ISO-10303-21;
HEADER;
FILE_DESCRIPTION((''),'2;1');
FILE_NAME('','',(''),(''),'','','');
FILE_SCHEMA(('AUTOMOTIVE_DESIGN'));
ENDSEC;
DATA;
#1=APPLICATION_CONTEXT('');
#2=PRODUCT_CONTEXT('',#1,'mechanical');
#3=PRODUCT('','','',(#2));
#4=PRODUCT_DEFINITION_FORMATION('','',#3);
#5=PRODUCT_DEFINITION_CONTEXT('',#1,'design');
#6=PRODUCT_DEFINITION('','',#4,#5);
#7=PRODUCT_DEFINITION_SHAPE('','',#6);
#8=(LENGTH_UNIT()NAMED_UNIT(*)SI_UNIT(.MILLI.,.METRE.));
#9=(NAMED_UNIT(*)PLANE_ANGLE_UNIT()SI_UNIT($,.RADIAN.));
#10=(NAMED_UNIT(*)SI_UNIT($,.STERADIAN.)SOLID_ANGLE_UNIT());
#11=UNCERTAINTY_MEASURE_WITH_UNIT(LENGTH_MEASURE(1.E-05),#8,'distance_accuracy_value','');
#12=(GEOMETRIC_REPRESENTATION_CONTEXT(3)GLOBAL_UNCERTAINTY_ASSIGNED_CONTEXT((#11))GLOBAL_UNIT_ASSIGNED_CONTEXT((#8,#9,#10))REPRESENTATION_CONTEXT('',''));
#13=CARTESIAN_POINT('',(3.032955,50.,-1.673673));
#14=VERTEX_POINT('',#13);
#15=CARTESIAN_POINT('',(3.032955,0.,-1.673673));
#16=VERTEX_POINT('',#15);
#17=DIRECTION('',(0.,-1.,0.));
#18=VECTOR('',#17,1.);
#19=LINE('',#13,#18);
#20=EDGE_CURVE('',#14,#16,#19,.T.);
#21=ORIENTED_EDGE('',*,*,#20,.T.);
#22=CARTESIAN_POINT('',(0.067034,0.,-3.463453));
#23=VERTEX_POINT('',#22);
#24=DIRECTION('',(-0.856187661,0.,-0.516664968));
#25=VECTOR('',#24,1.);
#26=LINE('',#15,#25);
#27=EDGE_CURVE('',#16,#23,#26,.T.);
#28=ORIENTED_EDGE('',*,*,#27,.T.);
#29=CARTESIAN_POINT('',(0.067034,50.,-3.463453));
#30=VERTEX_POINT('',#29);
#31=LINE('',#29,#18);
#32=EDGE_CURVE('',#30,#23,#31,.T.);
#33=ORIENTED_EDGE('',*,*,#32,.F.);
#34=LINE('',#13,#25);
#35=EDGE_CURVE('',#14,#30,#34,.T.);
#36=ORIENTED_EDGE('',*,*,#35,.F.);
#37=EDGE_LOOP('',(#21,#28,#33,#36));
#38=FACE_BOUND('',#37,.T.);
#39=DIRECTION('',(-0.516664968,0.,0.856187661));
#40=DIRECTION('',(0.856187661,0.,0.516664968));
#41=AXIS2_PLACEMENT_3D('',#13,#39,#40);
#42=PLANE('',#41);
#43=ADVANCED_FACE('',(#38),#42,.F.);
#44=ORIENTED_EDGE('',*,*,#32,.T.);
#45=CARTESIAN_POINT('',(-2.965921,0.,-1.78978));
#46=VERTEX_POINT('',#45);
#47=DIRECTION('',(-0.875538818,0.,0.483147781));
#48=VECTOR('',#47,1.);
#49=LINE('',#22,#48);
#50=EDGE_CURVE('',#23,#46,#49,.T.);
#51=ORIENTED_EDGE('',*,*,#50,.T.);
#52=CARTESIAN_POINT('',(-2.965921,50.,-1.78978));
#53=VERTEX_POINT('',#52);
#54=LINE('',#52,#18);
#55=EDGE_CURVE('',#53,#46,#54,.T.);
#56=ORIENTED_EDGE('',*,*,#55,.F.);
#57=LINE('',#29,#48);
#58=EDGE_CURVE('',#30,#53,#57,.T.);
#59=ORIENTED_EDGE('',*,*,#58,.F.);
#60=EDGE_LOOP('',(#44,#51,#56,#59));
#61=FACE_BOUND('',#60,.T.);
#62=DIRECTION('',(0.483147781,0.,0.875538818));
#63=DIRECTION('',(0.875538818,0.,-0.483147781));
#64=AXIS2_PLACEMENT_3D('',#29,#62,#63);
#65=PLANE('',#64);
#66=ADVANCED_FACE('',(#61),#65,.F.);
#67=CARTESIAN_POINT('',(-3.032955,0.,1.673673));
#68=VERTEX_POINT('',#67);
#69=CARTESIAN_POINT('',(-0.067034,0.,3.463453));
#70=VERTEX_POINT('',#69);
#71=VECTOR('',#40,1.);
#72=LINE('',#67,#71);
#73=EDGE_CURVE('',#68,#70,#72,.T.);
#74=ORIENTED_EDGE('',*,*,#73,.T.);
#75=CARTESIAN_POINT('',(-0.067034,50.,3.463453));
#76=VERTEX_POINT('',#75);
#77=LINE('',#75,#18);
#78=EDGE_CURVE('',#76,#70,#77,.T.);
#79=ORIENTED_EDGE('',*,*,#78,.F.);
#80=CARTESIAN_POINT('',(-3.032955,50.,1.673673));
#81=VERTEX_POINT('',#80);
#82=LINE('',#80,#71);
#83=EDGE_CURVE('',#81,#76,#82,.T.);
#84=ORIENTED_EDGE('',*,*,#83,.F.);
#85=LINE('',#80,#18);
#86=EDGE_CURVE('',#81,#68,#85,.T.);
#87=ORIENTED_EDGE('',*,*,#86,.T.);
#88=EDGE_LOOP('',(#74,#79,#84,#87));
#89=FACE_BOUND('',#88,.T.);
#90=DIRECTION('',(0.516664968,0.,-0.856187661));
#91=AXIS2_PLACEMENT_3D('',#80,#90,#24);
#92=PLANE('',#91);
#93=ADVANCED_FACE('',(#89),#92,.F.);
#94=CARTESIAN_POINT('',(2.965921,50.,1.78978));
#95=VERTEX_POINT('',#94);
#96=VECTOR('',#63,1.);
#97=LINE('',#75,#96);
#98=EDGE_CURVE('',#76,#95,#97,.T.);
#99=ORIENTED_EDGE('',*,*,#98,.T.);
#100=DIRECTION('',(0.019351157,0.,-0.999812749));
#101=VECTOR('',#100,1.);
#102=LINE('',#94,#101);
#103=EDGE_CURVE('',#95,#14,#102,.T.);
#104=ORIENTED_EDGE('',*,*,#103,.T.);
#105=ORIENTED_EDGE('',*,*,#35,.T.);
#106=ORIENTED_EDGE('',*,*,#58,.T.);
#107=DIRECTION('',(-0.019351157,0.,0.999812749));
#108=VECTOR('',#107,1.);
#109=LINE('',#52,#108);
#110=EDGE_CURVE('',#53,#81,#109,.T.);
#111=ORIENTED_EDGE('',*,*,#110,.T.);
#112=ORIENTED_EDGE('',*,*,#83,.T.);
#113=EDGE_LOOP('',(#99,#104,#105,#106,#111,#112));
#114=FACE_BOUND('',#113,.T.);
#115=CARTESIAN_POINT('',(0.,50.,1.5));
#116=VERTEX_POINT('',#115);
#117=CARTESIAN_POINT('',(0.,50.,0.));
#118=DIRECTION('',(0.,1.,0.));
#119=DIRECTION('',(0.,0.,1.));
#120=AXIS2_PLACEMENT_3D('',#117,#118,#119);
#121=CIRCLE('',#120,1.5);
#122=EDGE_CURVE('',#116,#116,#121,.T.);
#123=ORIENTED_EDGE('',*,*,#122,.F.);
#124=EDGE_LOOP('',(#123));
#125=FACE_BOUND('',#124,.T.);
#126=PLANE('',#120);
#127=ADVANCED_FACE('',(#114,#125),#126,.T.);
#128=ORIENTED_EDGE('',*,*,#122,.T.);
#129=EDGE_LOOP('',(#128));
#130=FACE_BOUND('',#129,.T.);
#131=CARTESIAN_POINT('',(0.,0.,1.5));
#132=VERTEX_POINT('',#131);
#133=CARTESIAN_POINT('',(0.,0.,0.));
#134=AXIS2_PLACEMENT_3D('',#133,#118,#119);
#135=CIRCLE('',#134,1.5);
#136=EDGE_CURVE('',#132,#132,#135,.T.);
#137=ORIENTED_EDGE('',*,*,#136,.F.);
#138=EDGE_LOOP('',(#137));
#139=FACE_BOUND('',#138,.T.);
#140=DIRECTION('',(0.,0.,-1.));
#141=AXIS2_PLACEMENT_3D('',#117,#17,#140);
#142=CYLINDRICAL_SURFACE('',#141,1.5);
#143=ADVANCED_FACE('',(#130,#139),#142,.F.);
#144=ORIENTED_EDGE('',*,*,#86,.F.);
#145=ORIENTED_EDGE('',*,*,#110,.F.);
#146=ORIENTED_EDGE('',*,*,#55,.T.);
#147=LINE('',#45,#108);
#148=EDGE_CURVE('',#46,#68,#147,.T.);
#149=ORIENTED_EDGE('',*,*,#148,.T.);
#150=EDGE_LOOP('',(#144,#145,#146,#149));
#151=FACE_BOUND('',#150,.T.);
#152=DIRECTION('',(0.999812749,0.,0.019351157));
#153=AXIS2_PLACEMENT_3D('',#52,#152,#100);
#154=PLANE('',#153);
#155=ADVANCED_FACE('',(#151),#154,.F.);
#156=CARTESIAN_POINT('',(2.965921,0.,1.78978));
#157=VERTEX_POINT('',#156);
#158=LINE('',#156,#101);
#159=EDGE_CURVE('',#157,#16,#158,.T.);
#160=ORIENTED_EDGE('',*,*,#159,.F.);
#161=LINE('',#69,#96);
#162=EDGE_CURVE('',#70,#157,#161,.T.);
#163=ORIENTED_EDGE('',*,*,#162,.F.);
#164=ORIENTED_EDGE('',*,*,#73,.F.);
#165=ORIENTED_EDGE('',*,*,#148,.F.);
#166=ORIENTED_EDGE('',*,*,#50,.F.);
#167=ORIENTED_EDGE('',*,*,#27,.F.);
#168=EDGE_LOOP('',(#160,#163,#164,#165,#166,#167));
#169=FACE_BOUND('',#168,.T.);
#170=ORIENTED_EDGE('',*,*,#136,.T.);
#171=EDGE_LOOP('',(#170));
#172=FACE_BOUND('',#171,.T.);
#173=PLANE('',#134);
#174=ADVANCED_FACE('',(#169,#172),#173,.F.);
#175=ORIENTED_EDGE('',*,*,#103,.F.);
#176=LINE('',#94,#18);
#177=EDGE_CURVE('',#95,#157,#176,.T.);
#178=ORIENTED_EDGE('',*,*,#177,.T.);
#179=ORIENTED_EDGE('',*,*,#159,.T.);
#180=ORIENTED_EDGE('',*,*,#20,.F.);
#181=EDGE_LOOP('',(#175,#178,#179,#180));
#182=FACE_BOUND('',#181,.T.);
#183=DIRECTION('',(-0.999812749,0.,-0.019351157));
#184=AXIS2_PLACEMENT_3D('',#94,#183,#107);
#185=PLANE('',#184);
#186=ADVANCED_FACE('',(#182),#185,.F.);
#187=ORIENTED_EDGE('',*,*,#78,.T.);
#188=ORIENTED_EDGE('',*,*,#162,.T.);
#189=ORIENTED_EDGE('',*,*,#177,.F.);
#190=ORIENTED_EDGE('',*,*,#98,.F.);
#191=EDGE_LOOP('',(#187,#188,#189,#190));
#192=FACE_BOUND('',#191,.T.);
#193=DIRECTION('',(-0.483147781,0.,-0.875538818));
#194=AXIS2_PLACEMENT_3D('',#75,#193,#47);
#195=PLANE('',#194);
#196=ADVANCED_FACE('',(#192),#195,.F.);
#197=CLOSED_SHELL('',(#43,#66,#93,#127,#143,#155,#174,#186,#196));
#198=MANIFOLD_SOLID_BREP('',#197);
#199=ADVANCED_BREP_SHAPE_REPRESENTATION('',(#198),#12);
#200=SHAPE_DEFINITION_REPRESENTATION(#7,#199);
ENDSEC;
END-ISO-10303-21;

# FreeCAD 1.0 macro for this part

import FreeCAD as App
import Part
import Sketcher

V = App.Vector
Q = App.Units.Quantity


def add_polygon(sketch, points):
    """Adds a closed chain of lines whose ends are joined by coincident constraints."""
    first, n = sketch.GeometryCount, len(points)
    for a, b in zip(points, points[1:] + points[:1]):
        sketch.addGeometry(Part.LineSegment(App.Vector(*a, 0), App.Vector(*b, 0)), False)
    for i in range(n):
        sketch.addConstraint(Sketcher.Constraint("Coincident", first + i, 2, first + (i + 1) % n, 1))

doc = App.newDocument("Part")
params = doc.addObject("Spreadsheet::Sheet", "Params")
for row, (alias, value) in enumerate([
    ("sketch1_diameter", "3 mm"),
    ("pad1_length", "50 mm"),
], start=1):
    params.set(f"A{row}", alias)
    params.set(f"B{row}", "=" + value)
    params.setAlias(f"B{row}", alias)

body = doc.addObject("PartDesign::Body", "Body")

# Sketch on XZ plane
sketch1 = body.newObject("Sketcher::SketchObject", "Sketch")
sketch1.AttachmentSupport = (doc.getObject("XZ_Plane"), [""])
sketch1.MapMode = "FlatFace"
add_polygon(sketch1, [(2.965921, 1.78978), (3.032955, -1.673673), (0.067034, -3.463453), (-2.965921, -1.78978), (-3.032955, 1.673673), (-0.067034, 3.463453)])  # lines 0-5
sketch1.addGeometry(Part.Circle(V(0, 0, 0), V(0, 0, 1), 1.5), False)  # 6
sketch1.addConstraint([
    Sketcher.Constraint("Coincident", 6, 3, -1, 1),
    Sketcher.Constraint("Symmetric", 0, 2, 3, 2, -1, 1),
    Sketcher.Constraint("Symmetric", 1, 2, 4, 2, -1, 1),
    Sketcher.Constraint("Symmetric", 2, 2, 5, 2, -1, 1),
    Sketcher.Constraint("Equal", 0, 1),
    Sketcher.Constraint("Equal", 1, 2),
    Sketcher.Constraint("Diameter", 6, Q("3 mm")),
    Sketcher.Constraint("Distance", 0, Q("3.464102 mm")),
    Sketcher.Constraint("DistanceX", 2, 2, -1, 1, Q("2.965921 mm")),
    Sketcher.Constraint("DistanceY", 2, 2, -1, 1, Q("1.78978 mm")),
    Sketcher.Constraint("DistanceX", 1, 2, 0, 2, Q("2.965921 mm")),
])
sketch1.setExpression("Constraints[12]", "Params.sketch1_diameter")
pad1 = body.newObject("PartDesign::Pad", "Pad")
pad1.Profile = sketch1
pad1.setExpression("Length", "Params.pad1_length")
pad1.Reversed = True

doc.recompute()
